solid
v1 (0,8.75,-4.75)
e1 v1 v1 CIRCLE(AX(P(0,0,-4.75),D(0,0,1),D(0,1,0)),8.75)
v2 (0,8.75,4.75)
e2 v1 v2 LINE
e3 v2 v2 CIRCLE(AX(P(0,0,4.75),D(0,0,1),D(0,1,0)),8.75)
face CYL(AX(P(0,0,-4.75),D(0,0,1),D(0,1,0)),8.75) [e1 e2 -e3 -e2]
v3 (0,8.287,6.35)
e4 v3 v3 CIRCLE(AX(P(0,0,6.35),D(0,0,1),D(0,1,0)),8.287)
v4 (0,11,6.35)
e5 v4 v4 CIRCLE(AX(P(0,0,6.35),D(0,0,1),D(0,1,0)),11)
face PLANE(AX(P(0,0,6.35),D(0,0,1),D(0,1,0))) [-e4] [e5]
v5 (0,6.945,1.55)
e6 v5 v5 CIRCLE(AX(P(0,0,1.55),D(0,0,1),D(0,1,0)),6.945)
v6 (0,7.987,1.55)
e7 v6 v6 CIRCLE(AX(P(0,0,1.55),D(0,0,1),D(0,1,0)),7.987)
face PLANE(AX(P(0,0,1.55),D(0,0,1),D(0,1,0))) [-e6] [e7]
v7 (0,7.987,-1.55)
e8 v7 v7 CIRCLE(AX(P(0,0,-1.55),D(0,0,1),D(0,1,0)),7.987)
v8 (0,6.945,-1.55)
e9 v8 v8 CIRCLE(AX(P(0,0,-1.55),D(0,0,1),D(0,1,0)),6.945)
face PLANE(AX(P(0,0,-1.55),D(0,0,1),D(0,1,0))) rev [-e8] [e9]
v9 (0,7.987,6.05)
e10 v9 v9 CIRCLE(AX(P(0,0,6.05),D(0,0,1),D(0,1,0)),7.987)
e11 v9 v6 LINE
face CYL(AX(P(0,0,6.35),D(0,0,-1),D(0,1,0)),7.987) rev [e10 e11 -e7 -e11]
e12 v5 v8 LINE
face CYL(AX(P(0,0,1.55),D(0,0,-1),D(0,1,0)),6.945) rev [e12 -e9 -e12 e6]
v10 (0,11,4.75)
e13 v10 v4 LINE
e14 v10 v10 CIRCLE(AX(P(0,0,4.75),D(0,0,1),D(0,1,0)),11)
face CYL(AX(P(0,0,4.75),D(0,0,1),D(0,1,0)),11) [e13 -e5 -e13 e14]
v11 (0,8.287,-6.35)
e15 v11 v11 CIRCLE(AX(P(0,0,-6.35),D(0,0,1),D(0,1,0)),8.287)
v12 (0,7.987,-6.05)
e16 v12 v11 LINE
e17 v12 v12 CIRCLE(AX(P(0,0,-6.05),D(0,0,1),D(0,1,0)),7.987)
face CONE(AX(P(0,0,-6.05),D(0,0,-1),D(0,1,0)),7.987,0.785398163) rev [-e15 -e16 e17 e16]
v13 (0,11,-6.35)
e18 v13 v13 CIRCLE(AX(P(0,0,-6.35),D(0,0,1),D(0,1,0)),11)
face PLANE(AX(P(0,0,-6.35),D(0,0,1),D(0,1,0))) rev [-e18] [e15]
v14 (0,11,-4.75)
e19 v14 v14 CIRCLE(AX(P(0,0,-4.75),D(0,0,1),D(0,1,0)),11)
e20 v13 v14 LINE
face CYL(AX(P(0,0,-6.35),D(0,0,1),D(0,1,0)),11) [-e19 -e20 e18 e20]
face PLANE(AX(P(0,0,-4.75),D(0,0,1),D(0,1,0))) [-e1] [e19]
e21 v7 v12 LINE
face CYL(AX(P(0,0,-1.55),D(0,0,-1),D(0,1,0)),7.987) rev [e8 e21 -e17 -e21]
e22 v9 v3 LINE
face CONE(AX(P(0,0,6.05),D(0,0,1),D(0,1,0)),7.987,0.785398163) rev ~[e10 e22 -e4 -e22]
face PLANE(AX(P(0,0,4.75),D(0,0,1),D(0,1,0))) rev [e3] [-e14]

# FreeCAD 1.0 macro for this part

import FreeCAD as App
import Part
import Sketcher


def edges_at(feature, points):
    """Names of the edges that pass closest to the given points."""
    edges = feature.Shape.Edges
    near = lambda p: min(range(len(edges)), key=lambda i: edges[i].distToShape(Part.Vertex(*p))[0])
    return sorted({f"Edge{near(p) + 1}" for p in points})

doc = App.newDocument("Part")
body = doc.addObject("PartDesign::Body", "Body")

sketch1 = doc.addObject("Sketcher::SketchObject", "Sketch")
body.addObject(sketch1)
sketch1.AttachmentSupport = (doc.YZ_Plane, [""])
sketch1.MapMode = "FlatFace"
sketch1.addGeometry([
    Part.LineSegment(App.Vector(7.987, -1.55, 0), App.Vector(7.987, -6.35, 0)),
    Part.LineSegment(App.Vector(7.987, -6.35, 0), App.Vector(11, -6.35, 0)),
    Part.LineSegment(App.Vector(11, -6.35, 0), App.Vector(11, -4.75, 0)),
    Part.LineSegment(App.Vector(11, -4.75, 0), App.Vector(8.75, -4.75, 0)),
    Part.LineSegment(App.Vector(8.75, -4.75, 0), App.Vector(8.75, 4.75, 0)),
    Part.LineSegment(App.Vector(8.75, 4.75, 0), App.Vector(11, 4.75, 0)),
    Part.LineSegment(App.Vector(11, 4.75, 0), App.Vector(11, 6.35, 0)),
    Part.LineSegment(App.Vector(11, 6.35, 0), App.Vector(7.987, 6.35, 0)),
    Part.LineSegment(App.Vector(7.987, 6.35, 0), App.Vector(7.987, 1.55, 0)),
    Part.LineSegment(App.Vector(7.987, 1.55, 0), App.Vector(6.945, 1.55, 0)),
    Part.LineSegment(App.Vector(6.945, 1.55, 0), App.Vector(6.945, -1.55, 0)),
    Part.LineSegment(App.Vector(6.945, -1.55, 0), App.Vector(7.987, -1.55, 0)),
], False)
sketch1.addConstraint([
    Sketcher.Constraint("Coincident", 0, 2, 1, 1),
    Sketcher.Constraint("Coincident", 1, 2, 2, 1),
    Sketcher.Constraint("Coincident", 2, 2, 3, 1),
    Sketcher.Constraint("Coincident", 3, 2, 4, 1),
    Sketcher.Constraint("Coincident", 4, 2, 5, 1),
    Sketcher.Constraint("Coincident", 5, 2, 6, 1),
    Sketcher.Constraint("Coincident", 6, 2, 7, 1),
    Sketcher.Constraint("Coincident", 7, 2, 8, 1),
    Sketcher.Constraint("Coincident", 8, 2, 9, 1),
    Sketcher.Constraint("Coincident", 9, 2, 10, 1),
    Sketcher.Constraint("Coincident", 10, 2, 11, 1),
    Sketcher.Constraint("Coincident", 11, 2, 0, 1),
    Sketcher.Constraint("Vertical", 0),
    Sketcher.Constraint("Horizontal", 1),
    Sketcher.Constraint("Vertical", 2),
    Sketcher.Constraint("Horizontal", 3),
    Sketcher.Constraint("Vertical", 4),
    Sketcher.Constraint("Horizontal", 5),
    Sketcher.Constraint("Vertical", 6),
    Sketcher.Constraint("Horizontal", 7),
    Sketcher.Constraint("Vertical", 8),
    Sketcher.Constraint("Horizontal", 9),
    Sketcher.Constraint("Vertical", 10),
    Sketcher.Constraint("Horizontal", 11),
    Sketcher.Constraint("Symmetric", 2, 2, 5, 2, -1),
    Sketcher.Constraint("Symmetric", 0, 2, 7, 2, -1),
    Sketcher.Constraint("Equal", 0, 8),
    Sketcher.Constraint("DistanceY", 4, 1, 4, 2, 9.5),
    Sketcher.Constraint("DistanceY", 10, 2, 10, 1, 3.1),
    Sketcher.Constraint("DistanceY", 1, 2, 6, 2, 12.7),
    Sketcher.Constraint("DistanceX", -1, 1, 1, 2, 11.0),
    Sketcher.Constraint("DistanceX", 3, 2, 3, 1, 2.25),
    Sketcher.Constraint("DistanceX", 1, 1, 1, 2, 3.013),
    Sketcher.Constraint("DistanceX", 9, 2, 9, 1, 1.042),
])
revolution = doc.addObject("PartDesign::Revolution", "Revolution")
body.addObject(revolution)
revolution.Profile = sketch1
revolution.ReferenceAxis = (sketch1, ["V_Axis"])
revolution.Angle = 360
doc.recompute()

chamfer = doc.addObject("PartDesign::Chamfer", "Chamfer")
body.addObject(chamfer)
chamfer.Base = (revolution, edges_at(revolution, [(0, -7.987, 6.35), (0, -7.987, -6.35)]))
chamfer.Size = 0.3

doc.recompute()
